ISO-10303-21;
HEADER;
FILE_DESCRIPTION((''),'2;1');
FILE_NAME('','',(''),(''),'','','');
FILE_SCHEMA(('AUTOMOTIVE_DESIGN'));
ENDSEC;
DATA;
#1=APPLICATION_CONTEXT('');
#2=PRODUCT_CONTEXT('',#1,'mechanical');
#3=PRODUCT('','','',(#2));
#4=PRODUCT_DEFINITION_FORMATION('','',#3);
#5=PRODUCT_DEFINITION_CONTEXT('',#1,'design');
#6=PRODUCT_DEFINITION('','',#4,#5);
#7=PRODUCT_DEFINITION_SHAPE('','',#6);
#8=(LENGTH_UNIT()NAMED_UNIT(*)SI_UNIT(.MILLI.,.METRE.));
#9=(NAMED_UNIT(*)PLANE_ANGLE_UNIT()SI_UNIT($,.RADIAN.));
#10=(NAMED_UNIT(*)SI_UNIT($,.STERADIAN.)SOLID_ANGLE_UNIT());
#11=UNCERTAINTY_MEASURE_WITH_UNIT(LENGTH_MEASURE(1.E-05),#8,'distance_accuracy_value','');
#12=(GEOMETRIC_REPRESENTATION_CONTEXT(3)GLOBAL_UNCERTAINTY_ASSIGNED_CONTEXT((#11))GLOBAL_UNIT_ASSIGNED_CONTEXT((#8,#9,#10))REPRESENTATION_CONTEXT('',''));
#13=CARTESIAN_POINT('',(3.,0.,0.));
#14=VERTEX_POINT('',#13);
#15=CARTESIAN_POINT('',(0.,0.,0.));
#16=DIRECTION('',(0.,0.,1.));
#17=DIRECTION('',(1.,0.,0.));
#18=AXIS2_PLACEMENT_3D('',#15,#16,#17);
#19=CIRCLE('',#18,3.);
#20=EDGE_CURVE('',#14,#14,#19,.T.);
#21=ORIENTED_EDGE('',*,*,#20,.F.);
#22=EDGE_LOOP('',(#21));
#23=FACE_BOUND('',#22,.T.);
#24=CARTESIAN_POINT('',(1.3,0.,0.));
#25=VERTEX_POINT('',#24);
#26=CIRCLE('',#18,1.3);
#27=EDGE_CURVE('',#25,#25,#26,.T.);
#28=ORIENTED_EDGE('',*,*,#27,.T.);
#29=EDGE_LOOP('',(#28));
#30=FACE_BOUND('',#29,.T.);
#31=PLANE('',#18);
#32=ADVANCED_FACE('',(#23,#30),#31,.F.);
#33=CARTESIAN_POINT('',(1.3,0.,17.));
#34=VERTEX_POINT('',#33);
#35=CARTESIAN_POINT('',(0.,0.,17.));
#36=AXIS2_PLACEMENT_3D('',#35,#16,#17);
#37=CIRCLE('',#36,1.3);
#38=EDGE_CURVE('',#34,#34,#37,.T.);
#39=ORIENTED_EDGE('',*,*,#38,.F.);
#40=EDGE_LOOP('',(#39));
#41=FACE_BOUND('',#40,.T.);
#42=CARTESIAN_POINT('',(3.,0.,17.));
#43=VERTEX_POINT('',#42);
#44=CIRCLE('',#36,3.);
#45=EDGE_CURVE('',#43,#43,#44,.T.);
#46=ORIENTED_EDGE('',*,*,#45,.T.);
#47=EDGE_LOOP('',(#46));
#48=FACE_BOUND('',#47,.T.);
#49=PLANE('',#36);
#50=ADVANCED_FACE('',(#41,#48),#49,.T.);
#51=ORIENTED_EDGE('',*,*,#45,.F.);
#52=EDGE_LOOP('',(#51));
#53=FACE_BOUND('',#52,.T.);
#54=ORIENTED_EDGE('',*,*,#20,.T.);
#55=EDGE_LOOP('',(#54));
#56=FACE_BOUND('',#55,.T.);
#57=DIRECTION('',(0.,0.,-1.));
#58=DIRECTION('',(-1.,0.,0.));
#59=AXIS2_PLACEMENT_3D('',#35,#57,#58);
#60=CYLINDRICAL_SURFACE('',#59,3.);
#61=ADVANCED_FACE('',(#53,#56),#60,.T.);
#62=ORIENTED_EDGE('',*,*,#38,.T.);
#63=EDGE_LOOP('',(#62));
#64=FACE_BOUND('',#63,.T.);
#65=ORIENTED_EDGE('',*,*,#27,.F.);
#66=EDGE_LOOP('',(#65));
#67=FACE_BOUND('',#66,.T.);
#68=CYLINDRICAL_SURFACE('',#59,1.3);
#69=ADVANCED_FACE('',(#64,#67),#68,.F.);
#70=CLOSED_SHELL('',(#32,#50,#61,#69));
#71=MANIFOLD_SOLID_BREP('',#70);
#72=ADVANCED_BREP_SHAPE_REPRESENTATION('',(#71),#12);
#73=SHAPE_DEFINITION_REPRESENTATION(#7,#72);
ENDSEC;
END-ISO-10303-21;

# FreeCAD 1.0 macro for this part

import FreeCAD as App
import Part
import Sketcher

V = App.Vector
Q = App.Units.Quantity

doc = App.newDocument("Part")
params = doc.addObject("Spreadsheet::Sheet", "Params")
for row, (alias, value) in enumerate([
    ("sketch1_diameter", "6 mm"),
    ("sketch1_diameter2", "2.6 mm"),
    ("pad1_length", "17 mm"),
], start=1):
    params.set(f"A{row}", alias)
    params.set(f"B{row}", "=" + value)
    params.setAlias(f"B{row}", alias)

body = doc.addObject("PartDesign::Body", "Body")

# Sketch on XY plane
sketch1 = doc.addObject("Sketcher::SketchObject", "Sketch")
body.addObject(sketch1)
sketch1.AttachmentSupport = (doc.XY_Plane, [""])
sketch1.MapMode = "FlatFace"
sketch1.addGeometry([
    Part.Circle(V(0, 0, 0), V(0, 0, 1), 3),
    Part.Circle(V(0, 0, 0), V(0, 0, 1), 1.3),
], False)
sketch1.addConstraint([
    Sketcher.Constraint("Coincident", 0, 3, -1, 1),
    Sketcher.Constraint("Coincident", 1, 3, -1, 1),
    Sketcher.Constraint("Diameter", 0, Q("6 mm")),
    Sketcher.Constraint("Diameter", 1, Q("2.6 mm")),
])
sketch1.setExpression("Constraints[2]", "Params.sketch1_diameter")
sketch1.setExpression("Constraints[3]", "Params.sketch1_diameter2")
pad1 = doc.addObject("PartDesign::Pad", "Pad")
body.addObject(pad1)
pad1.Profile = sketch1
pad1.setExpression("Length", "Params.pad1_length")

doc.recompute()
